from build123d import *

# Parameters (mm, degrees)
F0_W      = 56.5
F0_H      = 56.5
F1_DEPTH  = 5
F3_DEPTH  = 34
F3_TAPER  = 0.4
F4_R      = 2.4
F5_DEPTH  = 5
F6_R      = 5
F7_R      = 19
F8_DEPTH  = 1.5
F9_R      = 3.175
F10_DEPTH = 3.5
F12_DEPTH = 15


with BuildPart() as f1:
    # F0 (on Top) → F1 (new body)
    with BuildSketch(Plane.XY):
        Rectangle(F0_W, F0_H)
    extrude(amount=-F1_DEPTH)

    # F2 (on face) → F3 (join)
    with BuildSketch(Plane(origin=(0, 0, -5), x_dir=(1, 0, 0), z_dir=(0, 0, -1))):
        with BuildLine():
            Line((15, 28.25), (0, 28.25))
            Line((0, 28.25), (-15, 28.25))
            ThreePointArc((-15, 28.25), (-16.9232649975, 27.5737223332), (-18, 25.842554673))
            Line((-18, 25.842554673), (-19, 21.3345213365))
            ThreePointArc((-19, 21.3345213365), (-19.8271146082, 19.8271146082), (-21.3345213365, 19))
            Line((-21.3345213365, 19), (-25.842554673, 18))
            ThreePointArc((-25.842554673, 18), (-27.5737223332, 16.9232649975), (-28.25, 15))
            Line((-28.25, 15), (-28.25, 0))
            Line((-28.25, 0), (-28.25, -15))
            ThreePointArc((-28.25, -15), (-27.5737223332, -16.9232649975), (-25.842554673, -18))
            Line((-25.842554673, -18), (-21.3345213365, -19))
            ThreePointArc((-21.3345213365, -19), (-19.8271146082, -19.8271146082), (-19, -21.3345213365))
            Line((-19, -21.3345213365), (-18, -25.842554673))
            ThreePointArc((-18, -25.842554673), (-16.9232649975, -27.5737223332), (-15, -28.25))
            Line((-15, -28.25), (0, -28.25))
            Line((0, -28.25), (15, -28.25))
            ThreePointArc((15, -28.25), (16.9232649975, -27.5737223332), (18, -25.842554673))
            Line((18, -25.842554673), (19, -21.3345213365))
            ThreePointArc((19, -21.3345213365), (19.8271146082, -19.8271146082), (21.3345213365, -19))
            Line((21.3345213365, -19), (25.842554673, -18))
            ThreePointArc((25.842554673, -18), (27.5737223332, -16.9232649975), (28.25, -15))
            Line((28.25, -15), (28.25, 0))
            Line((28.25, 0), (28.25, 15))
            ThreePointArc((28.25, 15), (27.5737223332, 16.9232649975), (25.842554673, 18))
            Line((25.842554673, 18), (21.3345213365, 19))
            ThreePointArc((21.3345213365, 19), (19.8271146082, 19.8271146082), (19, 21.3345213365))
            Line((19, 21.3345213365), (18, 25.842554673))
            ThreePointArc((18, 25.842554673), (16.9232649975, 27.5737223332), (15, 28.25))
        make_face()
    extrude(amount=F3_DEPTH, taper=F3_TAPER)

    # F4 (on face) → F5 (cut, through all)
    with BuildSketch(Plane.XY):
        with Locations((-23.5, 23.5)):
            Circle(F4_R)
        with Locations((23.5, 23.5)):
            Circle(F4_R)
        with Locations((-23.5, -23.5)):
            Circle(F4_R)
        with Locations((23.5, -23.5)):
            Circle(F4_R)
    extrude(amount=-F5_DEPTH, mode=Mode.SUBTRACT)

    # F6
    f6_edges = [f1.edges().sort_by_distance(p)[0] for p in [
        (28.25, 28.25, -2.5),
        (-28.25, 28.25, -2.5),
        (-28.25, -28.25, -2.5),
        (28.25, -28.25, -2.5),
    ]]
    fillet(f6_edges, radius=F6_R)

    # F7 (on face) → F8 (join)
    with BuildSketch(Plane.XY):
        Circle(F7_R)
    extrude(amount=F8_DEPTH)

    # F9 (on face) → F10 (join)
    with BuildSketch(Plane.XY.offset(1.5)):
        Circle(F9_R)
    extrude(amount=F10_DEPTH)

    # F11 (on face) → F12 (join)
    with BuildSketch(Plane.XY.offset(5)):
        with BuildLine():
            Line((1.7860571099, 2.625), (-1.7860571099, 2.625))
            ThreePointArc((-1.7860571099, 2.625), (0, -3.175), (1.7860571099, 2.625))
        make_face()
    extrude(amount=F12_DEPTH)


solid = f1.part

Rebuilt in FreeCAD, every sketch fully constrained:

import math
import FreeCAD as App
import Part
import Sketcher


def edges_at(feature, points):
    """Names of the edges that pass closest to the given points."""
    edges = feature.Shape.Edges
    near = lambda p: min(range(len(edges)), key=lambda i: edges[i].distToShape(Part.Vertex(*p))[0])
    return sorted({f"Edge{near(p) + 1}" for p in points})


def add_polygon(sketch, points):
    """Adds a closed chain of lines whose ends are joined by coincident constraints."""
    first, n = sketch.GeometryCount, len(points)
    for a, b in zip(points, points[1:] + points[:1]):
        sketch.addGeometry(Part.LineSegment(App.Vector(*a, 0), App.Vector(*b, 0)), False)
    for i in range(n):
        sketch.addConstraint(Sketcher.Constraint("Coincident", first + i, 2, first + (i + 1) % n, 1))

doc = App.newDocument("Part")
params = doc.addObject("Spreadsheet::Sheet", "Params")
for row, (alias, value) in enumerate([
    ("sketch1_width", "56.5 mm"),
    ("pad1_length", "5 mm"),
    ("sketch2_width", "30 mm"),
    ("pad2_length", "34 mm"),
    ("pad2_taper", "-0.4 deg"),
    ("sketch3_diameter", "4.8 mm"),
    ("fillet_radius", "5 mm"),
    ("sketch4_diameter", "38 mm"),
    ("pad3_length", "1.5 mm"),
    ("sketch5_diameter", "6.35 mm"),
    ("pad4_length", "3.5 mm"),
    ("pad5_length", "15 mm"),
], start=1):
    params.set(f"A{row}", alias)
    params.set(f"B{row}", "=" + value)
    params.setAlias(f"B{row}", alias)

body = doc.addObject("PartDesign::Body", "Body")

# Sketch on XY plane
sketch1 = body.newObject("Sketcher::SketchObject", "Sketch")
sketch1.AttachmentSupport = (doc.getObject("XY_Plane"), [""])
sketch1.MapMode = "FlatFace"
add_polygon(sketch1, [(-28, 28), (-28, -28), (28, -28), (28, 28)])  # lines 0-3
sketch1.addConstraint([
    Sketcher.Constraint("Vertical", 0),
    Sketcher.Constraint("Horizontal", 1),
    Sketcher.Constraint("Vertical", 2),
    Sketcher.Constraint("Horizontal", 3),
    Sketcher.Constraint("Symmetric", 0, 2, 2, 2, -1, 1),
    Sketcher.Constraint("Equal", 3, 0),
    Sketcher.Constraint("DistanceX", 1, 1, 1, 2, 56.5),
])
sketch1.setExpression("Constraints[10]", "Params.sketch1_width")
pad1 = body.newObject("PartDesign::Pad", "Pad")
pad1.Profile = sketch1
pad1.setExpression("Length", "Params.pad1_length")
pad1.Reversed = True

# Sketch on XY plane
sketch2 = body.newObject("Sketcher::SketchObject", "Sketch001")
sketch2.AttachmentSupport = (doc.getObject("XY_Plane"), [""])
sketch2.MapMode = "FlatFace"
sketch2.AttachmentOffset = App.Placement(App.Vector(0, 0, -5), App.Rotation())
sketch2.addGeometry([
    Part.LineSegment(App.Vector(15, -28.2, 0), App.Vector(-15, -28.2, 0)),  # 0
    Part.ArcOfCircle(Part.Circle(App.Vector(-15, -25.2, 0), App.Vector(0, 0, 1), 3.1), math.radians(-167), math.radians(-90)),  # 1
    Part.LineSegment(App.Vector(-18, -25.8, 0), App.Vector(-19, -21.3, 0)),  # 2
    Part.ArcOfCircle(Part.Circle(App.Vector(-22, -22, 0), App.Vector(0, 0, 1), 3.1), math.radians(13), math.radians(77)),  # 3
    Part.LineSegment(App.Vector(-21.3, -19, 0), App.Vector(-25.8, -18, 0)),  # 4
    Part.ArcOfCircle(Part.Circle(App.Vector(-25.2, -15, 0), App.Vector(0, 0, 1), 3.1), math.radians(180), math.radians(257)),  # 5
    Part.LineSegment(App.Vector(-28.2, -15, 0), App.Vector(-28.2, 15, 0)),  # 6
    Part.ArcOfCircle(Part.Circle(App.Vector(-25.2, 15, 0), App.Vector(0, 0, 1), 3.1), math.radians(103), math.radians(180)),  # 7
    Part.LineSegment(App.Vector(-25.8, 18, 0), App.Vector(-21.3, 19, 0)),  # 8
    Part.ArcOfCircle(Part.Circle(App.Vector(-22, 22, 0), App.Vector(0, 0, 1), 3.1), math.radians(-77), math.radians(-13)),  # 9
    Part.LineSegment(App.Vector(-19, 21.3, 0), App.Vector(-18, 25.8, 0)),  # 10
    Part.ArcOfCircle(Part.Circle(App.Vector(-15, 25.2, 0), App.Vector(0, 0, 1), 3.1), math.radians(90), math.radians(167)),  # 11
    Part.LineSegment(App.Vector(-15, 28.2, 0), App.Vector(15, 28.2, 0)),  # 12
    Part.ArcOfCircle(Part.Circle(App.Vector(15, 25.2, 0), App.Vector(0, 0, 1), 3.1), math.radians(13), math.radians(90)),  # 13
    Part.LineSegment(App.Vector(18, 25.8, 0), App.Vector(19, 21.3, 0)),  # 14
    Part.ArcOfCircle(Part.Circle(App.Vector(22, 22, 0), App.Vector(0, 0, 1), 3.1), math.radians(-167), math.radians(-103)),  # 15
    Part.LineSegment(App.Vector(21.3, 19, 0), App.Vector(25.8, 18, 0)),  # 16
    Part.ArcOfCircle(Part.Circle(App.Vector(25.2, 15, 0), App.Vector(0, 0, 1), 3.1), math.radians(0), math.radians(77)),  # 17
    Part.LineSegment(App.Vector(28.2, 15, 0), App.Vector(28.2, -15, 0)),  # 18
    Part.ArcOfCircle(Part.Circle(App.Vector(25.2, -15, 0), App.Vector(0, 0, 1), 3.1), math.radians(-77), math.radians(0)),  # 19
    Part.LineSegment(App.Vector(25.8, -18, 0), App.Vector(21.3, -19, 0)),  # 20
    Part.ArcOfCircle(Part.Circle(App.Vector(22, -22, 0), App.Vector(0, 0, 1), 3.1), math.radians(103), math.radians(167)),  # 21
    Part.LineSegment(App.Vector(19, -21.3, 0), App.Vector(18, -25.8, 0)),  # 22
    Part.ArcOfCircle(Part.Circle(App.Vector(15, -25.2, 0), App.Vector(0, 0, 1), 3.1), math.radians(-90), math.radians(-13)),  # 23
], False)
sketch2.addConstraint([
    Sketcher.Constraint("Tangent", 0, 2, 1, 2),
    Sketcher.Constraint("Tangent", 1, 1, 2, 1),
    Sketcher.Constraint("Tangent", 2, 2, 3, 1),
    Sketcher.Constraint("Tangent", 3, 2, 4, 1),
    Sketcher.Constraint("Tangent", 4, 2, 5, 2),
    Sketcher.Constraint("Tangent", 5, 1, 6, 1),
    Sketcher.Constraint("Tangent", 6, 2, 7, 2),
    Sketcher.Constraint("Tangent", 7, 1, 8, 1),
    Sketcher.Constraint("Tangent", 8, 2, 9, 1),
    Sketcher.Constraint("Tangent", 9, 2, 10, 1),
    Sketcher.Constraint("Tangent", 10, 2, 11, 2),
    Sketcher.Constraint("Tangent", 11, 1, 12, 1),
    Sketcher.Constraint("Tangent", 12, 2, 13, 2),
    Sketcher.Constraint("Tangent", 13, 1, 14, 1),
    Sketcher.Constraint("Tangent", 14, 2, 15, 1),
    Sketcher.Constraint("Tangent", 15, 2, 16, 1),
    Sketcher.Constraint("Tangent", 16, 2, 17, 2),
    Sketcher.Constraint("Tangent", 17, 1, 18, 1),
    Sketcher.Constraint("Tangent", 18, 2, 19, 2),
    Sketcher.Constraint("Tangent", 19, 1, 20, 1),
    Sketcher.Constraint("Tangent", 20, 2, 21, 1),
    Sketcher.Constraint("Tangent", 21, 2, 22, 1),
    Sketcher.Constraint("Tangent", 22, 2, 23, 2),
    Sketcher.Constraint("Tangent", 23, 1, 0, 1),
    Sketcher.Constraint("Horizontal", 0),
    Sketcher.Constraint("Vertical", 6),
    Sketcher.Constraint("Horizontal", 12),
    Sketcher.Constraint("Vertical", 18),
    Sketcher.Constraint("Equal", 1, 3),
    Sketcher.Constraint("Equal", 3, 5),
    Sketcher.Constraint("Equal", 5, 7),
    Sketcher.Constraint("Equal", 7, 9),
    Sketcher.Constraint("Equal", 9, 11),
    Sketcher.Constraint("Equal", 11, 13),
    Sketcher.Constraint("Equal", 13, 15),
    Sketcher.Constraint("Equal", 15, 17),
    Sketcher.Constraint("Equal", 17, 19),
    Sketcher.Constraint("Equal", 19, 21),
    Sketcher.Constraint("Equal", 21, 23),
    Sketcher.Constraint("Symmetric", 1, 3, 13, 3, -1, 1),
    Sketcher.Constraint("Symmetric", 3, 3, 15, 3, -1, 1),
    Sketcher.Constraint("Symmetric", 5, 3, 17, 3, -1, 1),
    Sketcher.Constraint("Symmetric", 9, 3, 21, 3, -1, 1),
    Sketcher.Constraint("Symmetric", 9, 3, 15, 3, -2),
    Sketcher.Constraint("Perpendicular", 2, 8),
    Sketcher.Constraint("Perpendicular", 4, 10),
    Sketcher.Constraint("Perpendicular", 14, 20),
    Sketcher.Constraint("Perpendicular", 16, 22),
    Sketcher.Constraint("Horizontal", 7, 3, 17, 3),
    Sketcher.Constraint("Equal", 12, 6),
    Sketcher.Constraint("Equal", 2, 4),
    Sketcher.Constraint("DistanceX", 0, 2, 0, 1, 30.0),
    Sketcher.Constraint("DistanceX", 3, 3, -1, 1, 22.0),
    Sketcher.Constraint("DistanceX", 1, 1, -1, 1, 18.0),
    Sketcher.Constraint("DistanceY", 0, 2, -1, 1, 28.25),
])
sketch2.setExpression("Constraints[51]", "Params.sketch2_width")
pad2 = body.newObject("PartDesign::Pad", "Pad001")
pad2.Profile = sketch2
pad2.setExpression("Length", "Params.pad2_length")
pad2.Reversed = True
pad2.setExpression("TaperAngle", "Params.pad2_taper")

# Sketch on XY plane
sketch3 = body.newObject("Sketcher::SketchObject", "Sketch002")
sketch3.AttachmentSupport = (doc.getObject("XY_Plane"), [""])
sketch3.MapMode = "FlatFace"
sketch3.addGeometry([
    Part.Circle(App.Vector(-23.5, 23.5, 0), App.Vector(0, 0, 1), 2.4),
    Part.Circle(App.Vector(23.5, 23.5, 0), App.Vector(0, 0, 1), 2.4),
    Part.Circle(App.Vector(-23.5, -23.5, 0), App.Vector(0, 0, 1), 2.4),
    Part.Circle(App.Vector(23.5, -23.5, 0), App.Vector(0, 0, 1), 2.4),
], False)
sketch3.addConstraint([
    Sketcher.Constraint("Equal", 0, 1),
    Sketcher.Constraint("Equal", 1, 2),
    Sketcher.Constraint("Equal", 2, 3),
    Sketcher.Constraint("Symmetric", 1, 3, 2, 3, -1, 1),
    Sketcher.Constraint("Symmetric", 0, 3, 3, 3, -1, 1),
    Sketcher.Constraint("Symmetric", 0, 3, 1, 3, -2),
    Sketcher.Constraint("Diameter", 0, 4.8),
    Sketcher.Constraint("DistanceX", 0, 3, 1, 3, 47.0),
    Sketcher.Constraint("DistanceY", 2, 3, 0, 3, 47.0),
])
sketch3.setExpression("Constraints[6]", "Params.sketch3_diameter")
pocket1 = body.newObject("PartDesign::Pocket", "Pocket")
pocket1.Profile = sketch3
pocket1.Type = "ThroughAll"
doc.recompute()

fillet = body.newObject("PartDesign::Fillet", "Fillet")
fillet.Base = (pocket1, edges_at(pocket1, [
    (28.25, 28.25, -2.5),
    (-28.25, 28.25, -2.5),
    (-28.25, -28.25, -2.5),
    (28.25, -28.25, -2.5),
]))
fillet.setExpression("Radius", "Params.fillet_radius")

# Sketch on XY plane
sketch4 = body.newObject("Sketcher::SketchObject", "Sketch003")
sketch4.AttachmentSupport = (doc.getObject("XY_Plane"), [""])
sketch4.MapMode = "FlatFace"
sketch4.addGeometry(Part.Circle(App.Vector(0, 0, 0), App.Vector(0, 0, 1), 19), False)
sketch4.addConstraint([
    Sketcher.Constraint("Coincident", 0, 3, -1, 1),
    Sketcher.Constraint("Diameter", 0, 38.0),
])
sketch4.setExpression("Constraints[1]", "Params.sketch4_diameter")
pad3 = body.newObject("PartDesign::Pad", "Pad002")
pad3.Profile = sketch4
pad3.setExpression("Length", "Params.pad3_length")

# Sketch on XY plane
sketch5 = body.newObject("Sketcher::SketchObject", "Sketch004")
sketch5.AttachmentSupport = (doc.getObject("XY_Plane"), [""])
sketch5.MapMode = "FlatFace"
sketch5.AttachmentOffset = App.Placement(App.Vector(0, 0, 1.5), App.Rotation())
sketch5.addGeometry(Part.Circle(App.Vector(0, 0, 0), App.Vector(0, 0, 1), 3.2), False)
sketch5.addConstraint([
    Sketcher.Constraint("Coincident", 0, 3, -1, 1),
    Sketcher.Constraint("Diameter", 0, 6.35),
])
sketch5.setExpression("Constraints[1]", "Params.sketch5_diameter")
pad4 = body.newObject("PartDesign::Pad", "Pad003")
pad4.Profile = sketch5
pad4.setExpression("Length", "Params.pad4_length")

# Sketch on XY plane
sketch6 = body.newObject("Sketcher::SketchObject", "Sketch005")
sketch6.AttachmentSupport = (doc.getObject("XY_Plane"), [""])
sketch6.MapMode = "FlatFace"
sketch6.AttachmentOffset = App.Placement(App.Vector(0, 0, 5), App.Rotation())
sketch6.addGeometry([
    Part.LineSegment(App.Vector(1.8, 2.6, 0), App.Vector(-1.8, 2.6, 0)),
    Part.ArcOfCircle(Part.Circle(App.Vector(0, 0, 0), App.Vector(0, 0, 1), 3.2), math.radians(124), math.radians(416)),
], False)
sketch6.addConstraint([
    Sketcher.Constraint("Coincident", 0, 1, 1, 2),
    Sketcher.Constraint("Coincident", 1, 1, 0, 2),
    Sketcher.Constraint("Horizontal", 0),
    Sketcher.Constraint("Coincident", 1, 3, -1, 1),
    Sketcher.Constraint("Radius", 1, 3.175),
    Sketcher.Constraint("DistanceY", -1, 1, 0, 1, 2.625),
])
pad5 = body.newObject("PartDesign::Pad", "Pad004")
pad5.Profile = sketch6
pad5.setExpression("Length", "Params.pad5_length")

doc.recompute()
